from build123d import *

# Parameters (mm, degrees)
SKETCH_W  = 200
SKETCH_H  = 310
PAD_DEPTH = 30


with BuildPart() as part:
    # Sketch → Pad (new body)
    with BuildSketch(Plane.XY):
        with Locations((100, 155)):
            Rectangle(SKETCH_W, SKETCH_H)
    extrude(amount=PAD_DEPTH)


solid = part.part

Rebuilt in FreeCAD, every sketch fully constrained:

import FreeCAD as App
import Part
import Sketcher

V = App.Vector

doc = App.newDocument("Part")
params = doc.addObject("Spreadsheet::Sheet", "Params")
for row, (alias, value) in enumerate([
    ("sketch1_width", "200 mm"),
    ("sketch1_height", "310 mm"),
    ("pad1_length", "30 mm"),
], start=1):
    params.set(f"A{row}", alias)
    params.set(f"B{row}", "=" + value)
    params.setAlias(f"B{row}", alias)

body = doc.addObject("PartDesign::Body", "Body")

sketch1 = doc.addObject("Sketcher::SketchObject", "Sketch")
body.addObject(sketch1)
sketch1.AttachmentSupport = (doc.XY_Plane, [""])
sketch1.MapMode = "FlatFace"
sketch1.addGeometry(Part.LineSegment(V(0, 310, 0), V(0, 0, 0)), False)
sketch1.addGeometry(Part.LineSegment(V(0, 0, 0), V(200, 0, 0)), False)
sketch1.addGeometry(Part.LineSegment(V(200, 0, 0), V(200, 310, 0)), False)
sketch1.addGeometry(Part.LineSegment(V(200, 310, 0), V(0, 310, 0)), False)
sketch1.addConstraint(Sketcher.Constraint("Coincident", 0, 2, 1, 1))
sketch1.addConstraint(Sketcher.Constraint("Coincident", 1, 2, 2, 1))
sketch1.addConstraint(Sketcher.Constraint("Coincident", 2, 2, 3, 1))
sketch1.addConstraint(Sketcher.Constraint("Coincident", 3, 2, 0, 1))
sketch1.addConstraint(Sketcher.Constraint("Vertical", 0))
sketch1.addConstraint(Sketcher.Constraint("Horizontal", 1))
sketch1.addConstraint(Sketcher.Constraint("Vertical", 2))
sketch1.addConstraint(Sketcher.Constraint("Horizontal", 3))
sketch1.addConstraint(Sketcher.Constraint("Coincident", 0, 2, -1, 1))
sketch1.addConstraint(Sketcher.Constraint("DistanceX", 1, 1, 1, 2, 200.0))
sketch1.addConstraint(Sketcher.Constraint("DistanceY", 0, 2, 0, 1, 310.0))
sketch1.setExpression("Constraints[9]", "Params.sketch1_width")
sketch1.setExpression("Constraints[10]", "Params.sketch1_height")
pad1 = doc.addObject("PartDesign::Pad", "Pad")
body.addObject(pad1)
pad1.Profile = sketch1
pad1.setExpression("Length", "Params.pad1_length")

doc.recompute()
